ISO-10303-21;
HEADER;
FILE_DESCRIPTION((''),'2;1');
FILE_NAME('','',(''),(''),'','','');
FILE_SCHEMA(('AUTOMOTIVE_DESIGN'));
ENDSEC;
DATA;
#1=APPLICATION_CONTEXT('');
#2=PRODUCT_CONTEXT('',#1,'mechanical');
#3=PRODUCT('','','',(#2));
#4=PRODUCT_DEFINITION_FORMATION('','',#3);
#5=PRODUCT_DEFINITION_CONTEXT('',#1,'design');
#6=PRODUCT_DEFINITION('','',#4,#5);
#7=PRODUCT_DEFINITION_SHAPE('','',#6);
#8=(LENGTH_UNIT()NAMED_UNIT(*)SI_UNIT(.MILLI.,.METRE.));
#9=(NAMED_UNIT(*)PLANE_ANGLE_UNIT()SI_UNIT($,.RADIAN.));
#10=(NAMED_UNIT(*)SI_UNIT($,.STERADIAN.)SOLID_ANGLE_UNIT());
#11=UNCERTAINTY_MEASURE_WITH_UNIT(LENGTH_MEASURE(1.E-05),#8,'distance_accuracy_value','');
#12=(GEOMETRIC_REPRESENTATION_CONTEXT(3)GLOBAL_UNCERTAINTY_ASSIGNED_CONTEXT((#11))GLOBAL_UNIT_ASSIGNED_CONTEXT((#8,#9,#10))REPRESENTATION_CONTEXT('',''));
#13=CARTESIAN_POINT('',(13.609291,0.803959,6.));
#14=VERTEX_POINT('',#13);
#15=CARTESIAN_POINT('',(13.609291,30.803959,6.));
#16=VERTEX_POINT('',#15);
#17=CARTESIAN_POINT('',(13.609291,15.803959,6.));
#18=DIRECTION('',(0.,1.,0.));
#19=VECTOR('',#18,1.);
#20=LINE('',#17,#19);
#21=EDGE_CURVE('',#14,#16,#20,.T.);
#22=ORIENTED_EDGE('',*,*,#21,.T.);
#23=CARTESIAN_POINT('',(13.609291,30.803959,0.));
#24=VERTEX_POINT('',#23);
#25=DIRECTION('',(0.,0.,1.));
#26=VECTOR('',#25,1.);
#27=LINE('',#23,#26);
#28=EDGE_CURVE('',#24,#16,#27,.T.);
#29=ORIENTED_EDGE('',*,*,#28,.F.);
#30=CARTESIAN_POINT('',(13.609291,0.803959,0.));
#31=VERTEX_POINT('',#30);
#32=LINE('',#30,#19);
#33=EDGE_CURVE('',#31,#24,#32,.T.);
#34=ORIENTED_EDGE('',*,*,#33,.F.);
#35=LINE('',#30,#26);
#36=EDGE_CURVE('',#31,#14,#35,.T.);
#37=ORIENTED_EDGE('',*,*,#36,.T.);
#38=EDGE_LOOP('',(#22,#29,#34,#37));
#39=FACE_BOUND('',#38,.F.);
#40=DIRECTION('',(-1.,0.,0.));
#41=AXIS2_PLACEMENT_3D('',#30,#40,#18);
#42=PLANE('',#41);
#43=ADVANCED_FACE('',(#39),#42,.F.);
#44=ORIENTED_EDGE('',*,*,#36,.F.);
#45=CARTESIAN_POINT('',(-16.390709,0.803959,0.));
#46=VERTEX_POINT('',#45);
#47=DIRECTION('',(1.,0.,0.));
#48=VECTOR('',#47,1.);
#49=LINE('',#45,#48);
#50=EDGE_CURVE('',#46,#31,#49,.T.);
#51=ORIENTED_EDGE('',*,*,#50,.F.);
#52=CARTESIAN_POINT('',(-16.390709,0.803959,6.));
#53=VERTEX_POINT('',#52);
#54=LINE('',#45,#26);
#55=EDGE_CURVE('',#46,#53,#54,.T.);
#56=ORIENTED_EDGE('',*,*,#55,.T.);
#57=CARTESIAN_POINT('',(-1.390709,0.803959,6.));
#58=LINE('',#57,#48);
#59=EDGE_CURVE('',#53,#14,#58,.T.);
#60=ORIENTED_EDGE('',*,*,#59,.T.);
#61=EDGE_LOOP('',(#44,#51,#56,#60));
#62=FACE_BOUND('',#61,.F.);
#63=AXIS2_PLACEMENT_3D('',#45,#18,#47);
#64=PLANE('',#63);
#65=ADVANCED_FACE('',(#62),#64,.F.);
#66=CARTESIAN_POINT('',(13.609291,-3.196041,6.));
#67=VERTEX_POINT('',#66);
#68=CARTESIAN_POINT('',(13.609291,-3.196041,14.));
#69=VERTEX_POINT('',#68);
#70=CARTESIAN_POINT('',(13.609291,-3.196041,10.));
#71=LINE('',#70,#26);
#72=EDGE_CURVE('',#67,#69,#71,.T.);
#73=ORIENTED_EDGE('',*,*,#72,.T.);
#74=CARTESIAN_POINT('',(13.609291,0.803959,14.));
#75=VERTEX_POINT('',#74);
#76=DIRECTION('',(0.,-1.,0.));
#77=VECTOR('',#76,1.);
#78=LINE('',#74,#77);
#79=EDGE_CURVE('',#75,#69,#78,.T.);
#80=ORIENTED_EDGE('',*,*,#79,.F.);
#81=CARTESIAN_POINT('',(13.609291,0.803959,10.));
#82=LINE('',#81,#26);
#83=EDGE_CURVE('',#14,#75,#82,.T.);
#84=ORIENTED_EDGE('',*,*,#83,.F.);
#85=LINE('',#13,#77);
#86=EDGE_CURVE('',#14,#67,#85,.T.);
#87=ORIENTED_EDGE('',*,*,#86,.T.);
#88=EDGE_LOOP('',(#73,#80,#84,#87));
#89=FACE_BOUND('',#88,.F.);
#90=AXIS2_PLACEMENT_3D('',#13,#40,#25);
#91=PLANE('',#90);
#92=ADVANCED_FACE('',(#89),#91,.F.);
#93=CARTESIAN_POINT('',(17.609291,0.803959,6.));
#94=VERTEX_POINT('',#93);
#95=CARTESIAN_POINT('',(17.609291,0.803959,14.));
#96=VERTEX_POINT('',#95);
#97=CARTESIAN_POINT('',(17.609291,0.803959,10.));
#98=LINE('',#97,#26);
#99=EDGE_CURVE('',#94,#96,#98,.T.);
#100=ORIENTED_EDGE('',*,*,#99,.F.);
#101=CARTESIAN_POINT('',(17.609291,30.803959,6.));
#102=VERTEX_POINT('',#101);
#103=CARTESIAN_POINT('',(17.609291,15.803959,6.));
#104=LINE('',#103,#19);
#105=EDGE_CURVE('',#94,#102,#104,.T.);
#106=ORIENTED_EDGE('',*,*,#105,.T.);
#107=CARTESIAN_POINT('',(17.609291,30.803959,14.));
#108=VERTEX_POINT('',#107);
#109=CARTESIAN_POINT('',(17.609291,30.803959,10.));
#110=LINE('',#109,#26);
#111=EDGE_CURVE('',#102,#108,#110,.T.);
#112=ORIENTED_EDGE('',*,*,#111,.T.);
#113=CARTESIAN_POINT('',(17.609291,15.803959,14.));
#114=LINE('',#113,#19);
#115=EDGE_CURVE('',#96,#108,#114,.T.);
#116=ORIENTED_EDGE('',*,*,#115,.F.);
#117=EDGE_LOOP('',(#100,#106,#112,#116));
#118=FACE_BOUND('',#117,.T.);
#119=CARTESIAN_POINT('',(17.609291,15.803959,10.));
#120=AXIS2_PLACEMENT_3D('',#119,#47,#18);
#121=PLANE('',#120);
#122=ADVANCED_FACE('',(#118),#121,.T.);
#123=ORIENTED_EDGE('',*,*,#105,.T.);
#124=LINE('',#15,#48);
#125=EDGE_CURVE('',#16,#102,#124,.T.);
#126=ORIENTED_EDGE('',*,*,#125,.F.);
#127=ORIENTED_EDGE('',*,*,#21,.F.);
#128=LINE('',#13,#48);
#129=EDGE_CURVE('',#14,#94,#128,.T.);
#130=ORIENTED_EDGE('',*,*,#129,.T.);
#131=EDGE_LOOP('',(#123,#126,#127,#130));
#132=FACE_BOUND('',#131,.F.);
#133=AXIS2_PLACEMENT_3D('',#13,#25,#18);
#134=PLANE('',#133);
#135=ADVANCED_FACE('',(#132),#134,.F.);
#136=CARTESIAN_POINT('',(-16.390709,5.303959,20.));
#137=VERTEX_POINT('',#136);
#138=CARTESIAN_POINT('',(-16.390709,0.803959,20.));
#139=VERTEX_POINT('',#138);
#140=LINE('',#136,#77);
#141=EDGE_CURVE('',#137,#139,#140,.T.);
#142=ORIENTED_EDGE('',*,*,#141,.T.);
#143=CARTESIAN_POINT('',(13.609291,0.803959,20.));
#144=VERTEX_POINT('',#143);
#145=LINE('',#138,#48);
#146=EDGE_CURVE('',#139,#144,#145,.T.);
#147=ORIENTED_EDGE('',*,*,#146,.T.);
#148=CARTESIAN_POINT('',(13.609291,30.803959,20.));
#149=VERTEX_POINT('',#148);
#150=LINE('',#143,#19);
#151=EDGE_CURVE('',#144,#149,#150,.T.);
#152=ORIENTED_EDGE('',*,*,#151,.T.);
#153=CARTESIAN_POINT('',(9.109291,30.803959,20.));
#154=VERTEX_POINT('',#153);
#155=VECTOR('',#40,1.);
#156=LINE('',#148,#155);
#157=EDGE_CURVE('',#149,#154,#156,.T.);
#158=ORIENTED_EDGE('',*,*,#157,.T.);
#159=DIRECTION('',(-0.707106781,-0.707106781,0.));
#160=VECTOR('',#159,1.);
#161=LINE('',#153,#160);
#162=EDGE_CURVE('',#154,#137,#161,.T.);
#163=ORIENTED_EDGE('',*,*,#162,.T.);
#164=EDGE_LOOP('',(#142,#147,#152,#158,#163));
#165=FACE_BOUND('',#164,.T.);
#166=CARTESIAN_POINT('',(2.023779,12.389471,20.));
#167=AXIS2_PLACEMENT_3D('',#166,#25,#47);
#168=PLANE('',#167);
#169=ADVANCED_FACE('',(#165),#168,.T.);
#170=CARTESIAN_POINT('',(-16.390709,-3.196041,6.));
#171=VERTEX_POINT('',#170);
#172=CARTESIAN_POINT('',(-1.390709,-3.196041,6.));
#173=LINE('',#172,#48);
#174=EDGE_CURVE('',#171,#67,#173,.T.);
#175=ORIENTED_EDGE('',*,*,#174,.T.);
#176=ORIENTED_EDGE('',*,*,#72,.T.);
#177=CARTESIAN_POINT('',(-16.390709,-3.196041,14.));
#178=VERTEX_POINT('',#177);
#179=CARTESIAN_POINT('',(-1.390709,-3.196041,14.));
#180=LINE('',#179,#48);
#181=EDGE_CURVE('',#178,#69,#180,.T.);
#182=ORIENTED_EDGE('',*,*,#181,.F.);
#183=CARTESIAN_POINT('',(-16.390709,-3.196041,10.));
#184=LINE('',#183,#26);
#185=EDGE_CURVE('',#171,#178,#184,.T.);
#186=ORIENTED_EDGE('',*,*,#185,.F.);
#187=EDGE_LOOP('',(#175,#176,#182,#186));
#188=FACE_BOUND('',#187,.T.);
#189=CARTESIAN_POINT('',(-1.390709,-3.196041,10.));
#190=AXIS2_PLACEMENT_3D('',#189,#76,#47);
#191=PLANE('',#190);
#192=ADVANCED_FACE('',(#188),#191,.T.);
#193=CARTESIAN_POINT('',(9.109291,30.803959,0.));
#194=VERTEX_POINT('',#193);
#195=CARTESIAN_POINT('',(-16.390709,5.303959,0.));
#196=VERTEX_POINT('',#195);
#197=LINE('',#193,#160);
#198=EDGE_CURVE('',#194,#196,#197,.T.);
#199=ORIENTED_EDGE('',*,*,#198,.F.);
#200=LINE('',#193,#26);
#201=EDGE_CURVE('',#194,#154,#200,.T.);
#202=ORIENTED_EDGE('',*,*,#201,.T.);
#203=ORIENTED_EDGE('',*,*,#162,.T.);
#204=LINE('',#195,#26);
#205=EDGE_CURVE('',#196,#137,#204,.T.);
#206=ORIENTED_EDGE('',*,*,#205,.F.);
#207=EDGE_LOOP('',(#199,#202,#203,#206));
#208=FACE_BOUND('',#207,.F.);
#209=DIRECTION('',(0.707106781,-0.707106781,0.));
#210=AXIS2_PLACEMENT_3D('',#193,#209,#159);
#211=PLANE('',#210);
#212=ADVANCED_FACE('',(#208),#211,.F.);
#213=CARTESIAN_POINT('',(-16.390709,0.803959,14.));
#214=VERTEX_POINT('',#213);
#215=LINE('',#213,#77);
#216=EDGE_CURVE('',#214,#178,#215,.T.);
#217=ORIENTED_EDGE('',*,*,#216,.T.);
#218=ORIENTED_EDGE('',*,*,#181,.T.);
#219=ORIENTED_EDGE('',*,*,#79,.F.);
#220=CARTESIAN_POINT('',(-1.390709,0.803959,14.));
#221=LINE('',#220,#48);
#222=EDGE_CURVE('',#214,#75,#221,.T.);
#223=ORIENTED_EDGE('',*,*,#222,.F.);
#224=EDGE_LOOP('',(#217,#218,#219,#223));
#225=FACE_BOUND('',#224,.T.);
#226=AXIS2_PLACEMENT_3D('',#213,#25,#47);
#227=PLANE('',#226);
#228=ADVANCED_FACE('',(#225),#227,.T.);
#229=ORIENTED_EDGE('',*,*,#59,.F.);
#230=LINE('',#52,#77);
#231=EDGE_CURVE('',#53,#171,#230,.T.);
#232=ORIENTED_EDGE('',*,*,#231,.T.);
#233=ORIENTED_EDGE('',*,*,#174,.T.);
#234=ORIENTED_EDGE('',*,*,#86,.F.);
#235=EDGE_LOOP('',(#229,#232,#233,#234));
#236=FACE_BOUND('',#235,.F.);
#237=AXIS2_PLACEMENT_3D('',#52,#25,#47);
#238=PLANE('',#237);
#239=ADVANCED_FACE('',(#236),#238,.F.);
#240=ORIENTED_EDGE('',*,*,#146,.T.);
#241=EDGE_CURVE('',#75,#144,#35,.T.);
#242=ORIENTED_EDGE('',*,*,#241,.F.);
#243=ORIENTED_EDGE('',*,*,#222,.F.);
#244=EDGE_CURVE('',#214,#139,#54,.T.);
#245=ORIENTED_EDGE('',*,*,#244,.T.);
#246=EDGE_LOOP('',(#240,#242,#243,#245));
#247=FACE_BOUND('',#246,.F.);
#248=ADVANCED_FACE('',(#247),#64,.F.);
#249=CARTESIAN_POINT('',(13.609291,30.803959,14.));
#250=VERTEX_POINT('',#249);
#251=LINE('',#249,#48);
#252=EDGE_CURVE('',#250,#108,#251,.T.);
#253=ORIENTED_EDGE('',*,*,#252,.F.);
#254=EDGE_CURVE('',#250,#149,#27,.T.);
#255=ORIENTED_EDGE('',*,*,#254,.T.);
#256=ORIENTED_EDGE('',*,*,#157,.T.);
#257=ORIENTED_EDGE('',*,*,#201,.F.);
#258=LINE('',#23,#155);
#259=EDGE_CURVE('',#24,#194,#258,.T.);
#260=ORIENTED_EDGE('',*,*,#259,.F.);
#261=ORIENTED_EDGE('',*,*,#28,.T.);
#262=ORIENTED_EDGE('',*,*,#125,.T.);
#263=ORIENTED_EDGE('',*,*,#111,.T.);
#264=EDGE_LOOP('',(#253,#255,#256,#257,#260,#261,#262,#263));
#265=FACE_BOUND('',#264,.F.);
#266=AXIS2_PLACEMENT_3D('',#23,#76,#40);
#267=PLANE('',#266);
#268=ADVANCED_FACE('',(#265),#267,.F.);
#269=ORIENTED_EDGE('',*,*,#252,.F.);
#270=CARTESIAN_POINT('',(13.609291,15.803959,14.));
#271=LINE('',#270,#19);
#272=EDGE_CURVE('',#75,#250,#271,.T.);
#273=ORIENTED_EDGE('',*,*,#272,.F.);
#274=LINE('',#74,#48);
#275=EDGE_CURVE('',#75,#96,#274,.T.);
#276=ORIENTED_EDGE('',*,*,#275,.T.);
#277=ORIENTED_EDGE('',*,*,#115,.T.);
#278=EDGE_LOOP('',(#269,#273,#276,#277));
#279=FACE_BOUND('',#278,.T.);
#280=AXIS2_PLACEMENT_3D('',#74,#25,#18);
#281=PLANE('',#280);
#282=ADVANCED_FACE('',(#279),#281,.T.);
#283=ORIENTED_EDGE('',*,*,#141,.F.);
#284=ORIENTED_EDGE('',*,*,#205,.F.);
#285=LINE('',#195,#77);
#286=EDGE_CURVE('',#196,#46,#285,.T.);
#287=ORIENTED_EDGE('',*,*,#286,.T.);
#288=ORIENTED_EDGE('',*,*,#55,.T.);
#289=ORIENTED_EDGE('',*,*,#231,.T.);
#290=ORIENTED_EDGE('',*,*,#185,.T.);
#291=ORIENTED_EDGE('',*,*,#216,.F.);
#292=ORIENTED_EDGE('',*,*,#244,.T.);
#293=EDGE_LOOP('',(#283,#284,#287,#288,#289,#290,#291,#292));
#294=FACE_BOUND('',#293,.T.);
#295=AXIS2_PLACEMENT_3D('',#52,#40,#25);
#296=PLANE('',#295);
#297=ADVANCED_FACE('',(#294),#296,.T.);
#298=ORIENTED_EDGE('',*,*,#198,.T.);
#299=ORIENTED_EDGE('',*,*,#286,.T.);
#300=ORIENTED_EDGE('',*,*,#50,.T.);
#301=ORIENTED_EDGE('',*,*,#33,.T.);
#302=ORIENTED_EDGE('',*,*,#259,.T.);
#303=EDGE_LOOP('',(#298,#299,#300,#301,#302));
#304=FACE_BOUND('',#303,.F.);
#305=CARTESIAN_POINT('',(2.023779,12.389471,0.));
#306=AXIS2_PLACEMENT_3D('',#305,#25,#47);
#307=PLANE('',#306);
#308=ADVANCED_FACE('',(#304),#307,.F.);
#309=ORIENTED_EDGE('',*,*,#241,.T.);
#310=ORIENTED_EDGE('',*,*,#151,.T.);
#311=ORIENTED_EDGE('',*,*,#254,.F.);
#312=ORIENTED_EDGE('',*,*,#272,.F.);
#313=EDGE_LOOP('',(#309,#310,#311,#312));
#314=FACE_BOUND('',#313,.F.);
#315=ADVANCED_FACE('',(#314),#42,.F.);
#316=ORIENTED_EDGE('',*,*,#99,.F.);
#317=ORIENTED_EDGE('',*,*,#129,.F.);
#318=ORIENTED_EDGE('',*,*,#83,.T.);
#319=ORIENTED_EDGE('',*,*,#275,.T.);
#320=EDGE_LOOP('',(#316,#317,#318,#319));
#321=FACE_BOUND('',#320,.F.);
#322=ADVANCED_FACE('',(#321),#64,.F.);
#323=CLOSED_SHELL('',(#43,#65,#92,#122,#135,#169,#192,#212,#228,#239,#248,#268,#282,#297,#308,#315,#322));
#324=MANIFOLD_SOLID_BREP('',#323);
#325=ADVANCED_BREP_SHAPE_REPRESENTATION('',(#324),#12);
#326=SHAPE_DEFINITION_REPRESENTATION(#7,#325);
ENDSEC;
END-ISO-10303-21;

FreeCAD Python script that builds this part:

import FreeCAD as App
import Part
import Sketcher
from FreeCAD import Vector

doc = App.newDocument("Part")
body = doc.addObject("PartDesign::Body", "Body")

sketch1 = body.newObject("Sketcher::SketchObject", "Sketch")
sketch1.AttachmentSupport = (doc.getObject("XY_Plane"), [""])
sketch1.MapMode = "FlatFace"
sketch1.addGeometry([
    Part.LineSegment(Vector(9.109291, 30.803959, 0), Vector(-16.390709, 5.303959, 0)),
    Part.LineSegment(Vector(-16.390709, 5.303959, 0), Vector(-16.390709, 0.803959, 0)),
    Part.LineSegment(Vector(-16.390709, 0.803959, 0), Vector(13.609291, 0.803959, 0)),
    Part.LineSegment(Vector(13.609291, 0.803959, 0), Vector(13.609291, 30.803959, 0)),
    Part.LineSegment(Vector(13.609291, 30.803959, 0), Vector(9.109291, 30.803959, 0)),
], False)
sketch1.addConstraint([
    Sketcher.Constraint("Coincident", 0, 2, 1, 1),
    Sketcher.Constraint("Coincident", 1, 2, 2, 1),
    Sketcher.Constraint("Coincident", 2, 2, 3, 1),
    Sketcher.Constraint("Coincident", 3, 2, 4, 1),
    Sketcher.Constraint("Coincident", 4, 2, 0, 1),
    Sketcher.Constraint("Vertical", 1),
    Sketcher.Constraint("Horizontal", 2),
    Sketcher.Constraint("Vertical", 3),
    Sketcher.Constraint("Horizontal", 4),
    Sketcher.Constraint("Equal", 4, 1),
    Sketcher.Constraint("Equal", 2, 3),
    Sketcher.Constraint("DistanceX", 2, 1, 2, 2, 30.0),
    Sketcher.Constraint("DistanceX", 4, 2, 4, 1, 4.5),
    Sketcher.Constraint("DistanceX", 0, 2, -1, 1, 16.390709),
    Sketcher.Constraint("DistanceY", -1, 1, 0, 2, 5.303959),
])
pad1 = body.newObject("PartDesign::Pad", "Pad")
pad1.Profile = sketch1
pad1.Length = 20

sketch2 = body.newObject("Sketcher::SketchObject", "Sketch001")
sketch2.AttachmentSupport = (doc.getObject("YZ_Plane"), [""])
sketch2.MapMode = "FlatFace"
sketch2.AttachmentOffset = App.Placement(Vector(0, 0, 13.609291), App.Rotation())
sketch2.addGeometry([
    Part.LineSegment(Vector(0.803959, 14, 0), Vector(0.803959, 6, 0)),
    Part.LineSegment(Vector(0.803959, 6, 0), Vector(30.803959, 6, 0)),
    Part.LineSegment(Vector(30.803959, 6, 0), Vector(30.803959, 14, 0)),
    Part.LineSegment(Vector(30.803959, 14, 0), Vector(0.803959, 14, 0)),
], False)
sketch2.addConstraint([
    Sketcher.Constraint("Coincident", 0, 2, 1, 1),
    Sketcher.Constraint("Coincident", 1, 2, 2, 1),
    Sketcher.Constraint("Coincident", 2, 2, 3, 1),
    Sketcher.Constraint("Coincident", 3, 2, 0, 1),
    Sketcher.Constraint("Vertical", 0),
    Sketcher.Constraint("Horizontal", 1),
    Sketcher.Constraint("Vertical", 2),
    Sketcher.Constraint("Horizontal", 3),
    Sketcher.Constraint("DistanceX", 1, 1, 1, 2, 30.0),
    Sketcher.Constraint("DistanceY", 0, 2, 0, 1, 8.0),
    Sketcher.Constraint("DistanceY", -1, 1, 0, 2, 6.0),
    Sketcher.Constraint("DistanceX", -1, 1, 0, 2, 0.803959),
])
pad2 = body.newObject("PartDesign::Pad", "Pad001")
pad2.Profile = sketch2
pad2.Length = 4

sketch3 = body.newObject("Sketcher::SketchObject", "Sketch002")
sketch3.AttachmentSupport = (doc.getObject("XZ_Plane"), [""])
sketch3.MapMode = "FlatFace"
sketch3.AttachmentOffset = App.Placement(Vector(0, 0, -0.803959), App.Rotation())
sketch3.addGeometry([
    Part.LineSegment(Vector(-16.390709, 14, 0), Vector(-16.390709, 6, 0)),
    Part.LineSegment(Vector(-16.390709, 6, 0), Vector(13.609291, 6, 0)),
    Part.LineSegment(Vector(13.609291, 6, 0), Vector(13.609291, 14, 0)),
    Part.LineSegment(Vector(13.609291, 14, 0), Vector(-16.390709, 14, 0)),
], False)
sketch3.addConstraint([
    Sketcher.Constraint("Coincident", 0, 2, 1, 1),
    Sketcher.Constraint("Coincident", 1, 2, 2, 1),
    Sketcher.Constraint("Coincident", 2, 2, 3, 1),
    Sketcher.Constraint("Coincident", 3, 2, 0, 1),
    Sketcher.Constraint("Vertical", 0),
    Sketcher.Constraint("Horizontal", 1),
    Sketcher.Constraint("Vertical", 2),
    Sketcher.Constraint("Horizontal", 3),
    Sketcher.Constraint("DistanceX", 1, 1, 1, 2, 30.0),
    Sketcher.Constraint("DistanceY", 0, 2, 0, 1, 8.0),
    Sketcher.Constraint("DistanceY", -1, 1, 0, 2, 6.0),
    Sketcher.Constraint("DistanceX", 0, 2, -1, 1, 16.390709),
])
pad3 = body.newObject("PartDesign::Pad", "Pad002")
pad3.Profile = sketch3
pad3.Length = 4

doc.recompute()
